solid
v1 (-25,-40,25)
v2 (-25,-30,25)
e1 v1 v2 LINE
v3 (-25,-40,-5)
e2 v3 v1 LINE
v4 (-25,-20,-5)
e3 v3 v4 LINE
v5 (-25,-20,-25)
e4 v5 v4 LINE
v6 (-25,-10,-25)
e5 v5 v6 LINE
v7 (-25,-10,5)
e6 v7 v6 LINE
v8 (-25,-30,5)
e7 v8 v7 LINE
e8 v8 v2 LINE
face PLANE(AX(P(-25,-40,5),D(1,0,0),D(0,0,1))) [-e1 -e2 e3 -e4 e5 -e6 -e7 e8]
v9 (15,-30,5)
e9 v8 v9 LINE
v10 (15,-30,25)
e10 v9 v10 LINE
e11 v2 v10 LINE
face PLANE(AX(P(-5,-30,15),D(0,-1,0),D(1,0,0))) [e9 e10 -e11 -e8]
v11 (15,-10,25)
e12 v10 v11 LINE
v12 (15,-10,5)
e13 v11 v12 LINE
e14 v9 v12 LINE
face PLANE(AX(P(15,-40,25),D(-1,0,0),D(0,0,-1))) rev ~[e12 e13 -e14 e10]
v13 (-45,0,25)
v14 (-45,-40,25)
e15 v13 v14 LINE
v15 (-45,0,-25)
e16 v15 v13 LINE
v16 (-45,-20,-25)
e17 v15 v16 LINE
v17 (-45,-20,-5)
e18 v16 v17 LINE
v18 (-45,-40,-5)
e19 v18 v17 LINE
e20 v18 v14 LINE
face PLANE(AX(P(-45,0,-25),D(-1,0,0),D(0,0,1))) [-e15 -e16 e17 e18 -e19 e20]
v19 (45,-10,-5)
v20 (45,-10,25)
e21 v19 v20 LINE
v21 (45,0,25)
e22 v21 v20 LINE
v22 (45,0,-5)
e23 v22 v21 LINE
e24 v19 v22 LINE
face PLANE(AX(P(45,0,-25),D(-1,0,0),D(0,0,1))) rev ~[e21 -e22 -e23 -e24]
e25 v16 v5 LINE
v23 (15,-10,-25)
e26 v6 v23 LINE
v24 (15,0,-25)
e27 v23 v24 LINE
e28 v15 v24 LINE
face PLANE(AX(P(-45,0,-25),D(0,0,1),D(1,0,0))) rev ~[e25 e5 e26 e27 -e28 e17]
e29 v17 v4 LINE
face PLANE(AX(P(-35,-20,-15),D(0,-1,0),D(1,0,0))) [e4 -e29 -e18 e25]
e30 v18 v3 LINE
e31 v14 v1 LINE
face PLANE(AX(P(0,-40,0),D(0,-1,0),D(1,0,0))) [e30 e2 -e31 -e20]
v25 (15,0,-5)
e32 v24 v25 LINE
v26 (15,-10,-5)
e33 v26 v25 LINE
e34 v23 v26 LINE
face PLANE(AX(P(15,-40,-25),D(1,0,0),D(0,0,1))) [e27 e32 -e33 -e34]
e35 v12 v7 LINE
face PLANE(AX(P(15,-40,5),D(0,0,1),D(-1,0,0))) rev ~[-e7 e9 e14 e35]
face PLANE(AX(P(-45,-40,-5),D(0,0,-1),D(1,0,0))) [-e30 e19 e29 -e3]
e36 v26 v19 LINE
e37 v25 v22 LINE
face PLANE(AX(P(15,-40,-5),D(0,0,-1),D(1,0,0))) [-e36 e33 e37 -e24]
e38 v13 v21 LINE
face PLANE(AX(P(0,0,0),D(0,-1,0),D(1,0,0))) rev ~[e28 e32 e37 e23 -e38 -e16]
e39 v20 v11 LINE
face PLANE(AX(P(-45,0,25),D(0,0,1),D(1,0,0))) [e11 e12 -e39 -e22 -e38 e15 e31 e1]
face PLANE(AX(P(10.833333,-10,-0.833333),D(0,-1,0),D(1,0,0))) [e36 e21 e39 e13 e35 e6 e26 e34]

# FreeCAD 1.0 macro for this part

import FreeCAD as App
import Part
import Sketcher
Q = App.Units.Quantity

doc = App.newDocument("Part")
params = doc.addObject("Spreadsheet::Sheet", "Params")
for row, (alias, value) in enumerate([
    ("sketch1_width", "90 mm"),
    ("sketch1_height", "50 mm"),
    ("pad1_length", "40 mm"),
    ("sketch2_width", "30 mm"),
    ("sketch2_height", "20 mm"),
    ("sketch3_width", "20 mm"),
    ("pocket2_length", "20 mm"),
    ("sketch4_width", "40 mm"),
    ("sketch4_height", "20 mm"),
    ("pocket3_length", "10 mm"),
    ("sketch5_width", "40 mm"),
    ("sketch5_width2", "30 mm"),
    ("sketch5_height", "20 mm"),
    ("pocket4_length", "30 mm"),
], start=1):
    params.set(f"A{row}", alias)
    params.set(f"B{row}", "=" + value)
    params.setAlias(f"B{row}", alias)

body = doc.addObject("PartDesign::Body", "Body")

# Sketch on XZ plane
sketch1 = body.newObject("Sketcher::SketchObject", "Sketch")
sketch1.AttachmentSupport = (doc.getObject("XZ_Plane"), [""])
sketch1.MapMode = "FlatFace"
sketch1.addGeometry([
    Part.LineSegment(App.Vector(-45, 25, 0), App.Vector(-45, -25, 0)),
    Part.LineSegment(App.Vector(-45, -25, 0), App.Vector(45, -25, 0)),
    Part.LineSegment(App.Vector(45, -25, 0), App.Vector(45, 25, 0)),
    Part.LineSegment(App.Vector(45, 25, 0), App.Vector(-45, 25, 0)),
], False)
sketch1.addConstraint([
    Sketcher.Constraint("Coincident", 0, 2, 1, 1),
    Sketcher.Constraint("Coincident", 1, 2, 2, 1),
    Sketcher.Constraint("Coincident", 2, 2, 3, 1),
    Sketcher.Constraint("Coincident", 3, 2, 0, 1),
    Sketcher.Constraint("Vertical", 0),
    Sketcher.Constraint("Horizontal", 1),
    Sketcher.Constraint("Vertical", 2),
    Sketcher.Constraint("Horizontal", 3),
    Sketcher.Constraint("Symmetric", 0, 2, 2, 2, -1, 1),
    Sketcher.Constraint("DistanceX", 1, 1, 1, 2, Q("90 mm")),
    Sketcher.Constraint("DistanceY", 0, 2, 0, 1, Q("50 mm")),
])
sketch1.setExpression("Constraints[9]", "Params.sketch1_width")
sketch1.setExpression("Constraints[10]", "Params.sketch1_height")
pad1 = body.newObject("PartDesign::Pad", "Pad")
pad1.Profile = sketch1
pad1.setExpression("Length", "Params.pad1_length")

# Sketch on XZ plane
sketch2 = body.newObject("Sketcher::SketchObject", "Sketch001")
sketch2.AttachmentSupport = (doc.getObject("XZ_Plane"), [""])
sketch2.MapMode = "FlatFace"
sketch2.AttachmentOffset = App.Placement(App.Vector(0, 0, 40), App.Rotation())
sketch2.addGeometry([
    Part.LineSegment(App.Vector(15, -5, 0), App.Vector(15, -25, 0)),
    Part.LineSegment(App.Vector(15, -25, 0), App.Vector(45, -25, 0)),
    Part.LineSegment(App.Vector(45, -25, 0), App.Vector(45, -5, 0)),
    Part.LineSegment(App.Vector(45, -5, 0), App.Vector(15, -5, 0)),
], False)
sketch2.addConstraint([
    Sketcher.Constraint("Coincident", 0, 2, 1, 1),
    Sketcher.Constraint("Coincident", 1, 2, 2, 1),
    Sketcher.Constraint("Coincident", 2, 2, 3, 1),
    Sketcher.Constraint("Coincident", 3, 2, 0, 1),
    Sketcher.Constraint("Vertical", 0),
    Sketcher.Constraint("Horizontal", 1),
    Sketcher.Constraint("Vertical", 2),
    Sketcher.Constraint("Horizontal", 3),
    Sketcher.Constraint("DistanceX", 1, 1, 1, 2, Q("30 mm")),
    Sketcher.Constraint("DistanceY", 0, 2, 0, 1, Q("20 mm")),
    Sketcher.Constraint("DistanceX", -1, 1, 0, 2, Q("15 mm")),
    Sketcher.Constraint("DistanceY", 0, 2, -1, 1, Q("25 mm")),
])
sketch2.setExpression("Constraints[8]", "Params.sketch2_width")
sketch2.setExpression("Constraints[9]", "Params.sketch2_height")
pocket1 = body.newObject("PartDesign::Pocket", "Pocket")
pocket1.Profile = sketch2
pocket1.Type = "ThroughAll"

# Sketch on XZ plane
sketch3 = body.newObject("Sketcher::SketchObject", "Sketch002")
sketch3.AttachmentSupport = (doc.getObject("XZ_Plane"), [""])
sketch3.MapMode = "FlatFace"
sketch3.AttachmentOffset = App.Placement(App.Vector(0, 0, 40), App.Rotation())
sketch3.addGeometry([
    Part.LineSegment(App.Vector(-45, -5, 0), App.Vector(-45, -25, 0)),
    Part.LineSegment(App.Vector(-45, -25, 0), App.Vector(-25, -25, 0)),
    Part.LineSegment(App.Vector(-25, -25, 0), App.Vector(-25, -5, 0)),
    Part.LineSegment(App.Vector(-25, -5, 0), App.Vector(-45, -5, 0)),
], False)
sketch3.addConstraint([
    Sketcher.Constraint("Coincident", 0, 2, 1, 1),
    Sketcher.Constraint("Coincident", 1, 2, 2, 1),
    Sketcher.Constraint("Coincident", 2, 2, 3, 1),
    Sketcher.Constraint("Coincident", 3, 2, 0, 1),
    Sketcher.Constraint("Vertical", 0),
    Sketcher.Constraint("Horizontal", 1),
    Sketcher.Constraint("Vertical", 2),
    Sketcher.Constraint("Horizontal", 3),
    Sketcher.Constraint("Equal", 3, 0),
    Sketcher.Constraint("DistanceX", 1, 1, 1, 2, Q("20 mm")),
    Sketcher.Constraint("DistanceX", 0, 2, -1, 1, Q("45 mm")),
    Sketcher.Constraint("DistanceY", 0, 2, -1, 1, Q("25 mm")),
])
sketch3.setExpression("Constraints[9]", "Params.sketch3_width")
pocket2 = body.newObject("PartDesign::Pocket", "Pocket001")
pocket2.Profile = sketch3
pocket2.setExpression("Length", "Params.pocket2_length")

# Sketch on XZ plane
sketch4 = body.newObject("Sketcher::SketchObject", "Sketch003")
sketch4.AttachmentSupport = (doc.getObject("XZ_Plane"), [""])
sketch4.MapMode = "FlatFace"
sketch4.AttachmentOffset = App.Placement(App.Vector(0, 0, 40), App.Rotation())
sketch4.addGeometry([
    Part.LineSegment(App.Vector(-25, 25, 0), App.Vector(-25, 5, 0)),
    Part.LineSegment(App.Vector(-25, 5, 0), App.Vector(15, 5, 0)),
    Part.LineSegment(App.Vector(15, 5, 0), App.Vector(15, 25, 0)),
    Part.LineSegment(App.Vector(15, 25, 0), App.Vector(-25, 25, 0)),
], False)
sketch4.addConstraint([
    Sketcher.Constraint("Coincident", 0, 2, 1, 1),
    Sketcher.Constraint("Coincident", 1, 2, 2, 1),
    Sketcher.Constraint("Coincident", 2, 2, 3, 1),
    Sketcher.Constraint("Coincident", 3, 2, 0, 1),
    Sketcher.Constraint("Vertical", 0),
    Sketcher.Constraint("Horizontal", 1),
    Sketcher.Constraint("Vertical", 2),
    Sketcher.Constraint("Horizontal", 3),
    Sketcher.Constraint("DistanceX", 1, 1, 1, 2, Q("40 mm")),
    Sketcher.Constraint("DistanceY", 0, 2, 0, 1, Q("20 mm")),
    Sketcher.Constraint("DistanceX", 0, 2, -1, 1, Q("25 mm")),
    Sketcher.Constraint("DistanceY", -1, 1, 0, 2, Q("5 mm")),
])
sketch4.setExpression("Constraints[8]", "Params.sketch4_width")
sketch4.setExpression("Constraints[9]", "Params.sketch4_height")
pocket3 = body.newObject("PartDesign::Pocket", "Pocket002")
pocket3.Profile = sketch4
pocket3.setExpression("Length", "Params.pocket3_length")

# Sketch on XZ plane
sketch5 = body.newObject("Sketcher::SketchObject", "Sketch004")
sketch5.AttachmentSupport = (doc.getObject("XZ_Plane"), [""])
sketch5.MapMode = "FlatFace"
sketch5.AttachmentOffset = App.Placement(App.Vector(0, 0, 40), App.Rotation())
sketch5.addGeometry([
    Part.LineSegment(App.Vector(15, 5, 0), App.Vector(-25, 5, 0)),  # 0
    Part.LineSegment(App.Vector(-25, 5, 0), App.Vector(-25, -25, 0)),  # 1
    Part.LineSegment(App.Vector(-25, -25, 0), App.Vector(15, -25, 0)),  # 2
    Part.LineSegment(App.Vector(15, -25, 0), App.Vector(15, -5, 0)),  # 3
    Part.LineSegment(App.Vector(15, -5, 0), App.Vector(45, -5, 0)),  # 4
    Part.LineSegment(App.Vector(45, -5, 0), App.Vector(45, 25, 0)),  # 5
    Part.LineSegment(App.Vector(45, 25, 0), App.Vector(15, 25, 0)),  # 6
    Part.LineSegment(App.Vector(15, 25, 0), App.Vector(15, 5, 0)),  # 7
], False)
sketch5.addConstraint([
    Sketcher.Constraint("Coincident", 0, 2, 1, 1),
    Sketcher.Constraint("Coincident", 1, 2, 2, 1),
    Sketcher.Constraint("Coincident", 2, 2, 3, 1),
    Sketcher.Constraint("Coincident", 3, 2, 4, 1),
    Sketcher.Constraint("Coincident", 4, 2, 5, 1),
    Sketcher.Constraint("Coincident", 5, 2, 6, 1),
    Sketcher.Constraint("Coincident", 6, 2, 7, 1),
    Sketcher.Constraint("Coincident", 7, 2, 0, 1),
    Sketcher.Constraint("Horizontal", 0),
    Sketcher.Constraint("Vertical", 1),
    Sketcher.Constraint("Horizontal", 2),
    Sketcher.Constraint("Vertical", 3),
    Sketcher.Constraint("Horizontal", 4),
    Sketcher.Constraint("Vertical", 5),
    Sketcher.Constraint("Horizontal", 6),
    Sketcher.Constraint("Vertical", 7),
    Sketcher.Constraint("Symmetric", 2, 2, 6, 2, -1),
    Sketcher.Constraint("Equal", 6, 1),
    Sketcher.Constraint("Equal", 1, 5),
    Sketcher.Constraint("DistanceX", 0, 2, 0, 1, Q("40 mm")),
    Sketcher.Constraint("DistanceX", 4, 1, 4, 2, Q("30 mm")),
    Sketcher.Constraint("DistanceY", 3, 1, 3, 2, Q("20 mm")),
    Sketcher.Constraint("DistanceX", 0, 2, -1, 1, Q("25 mm")),
])
sketch5.setExpression("Constraints[19]", "Params.sketch5_width")
sketch5.setExpression("Constraints[20]", "Params.sketch5_width2")
sketch5.setExpression("Constraints[21]", "Params.sketch5_height")
pocket4 = body.newObject("PartDesign::Pocket", "Pocket003")
pocket4.Profile = sketch5
pocket4.setExpression("Length", "Params.pocket4_length")

doc.recompute()
